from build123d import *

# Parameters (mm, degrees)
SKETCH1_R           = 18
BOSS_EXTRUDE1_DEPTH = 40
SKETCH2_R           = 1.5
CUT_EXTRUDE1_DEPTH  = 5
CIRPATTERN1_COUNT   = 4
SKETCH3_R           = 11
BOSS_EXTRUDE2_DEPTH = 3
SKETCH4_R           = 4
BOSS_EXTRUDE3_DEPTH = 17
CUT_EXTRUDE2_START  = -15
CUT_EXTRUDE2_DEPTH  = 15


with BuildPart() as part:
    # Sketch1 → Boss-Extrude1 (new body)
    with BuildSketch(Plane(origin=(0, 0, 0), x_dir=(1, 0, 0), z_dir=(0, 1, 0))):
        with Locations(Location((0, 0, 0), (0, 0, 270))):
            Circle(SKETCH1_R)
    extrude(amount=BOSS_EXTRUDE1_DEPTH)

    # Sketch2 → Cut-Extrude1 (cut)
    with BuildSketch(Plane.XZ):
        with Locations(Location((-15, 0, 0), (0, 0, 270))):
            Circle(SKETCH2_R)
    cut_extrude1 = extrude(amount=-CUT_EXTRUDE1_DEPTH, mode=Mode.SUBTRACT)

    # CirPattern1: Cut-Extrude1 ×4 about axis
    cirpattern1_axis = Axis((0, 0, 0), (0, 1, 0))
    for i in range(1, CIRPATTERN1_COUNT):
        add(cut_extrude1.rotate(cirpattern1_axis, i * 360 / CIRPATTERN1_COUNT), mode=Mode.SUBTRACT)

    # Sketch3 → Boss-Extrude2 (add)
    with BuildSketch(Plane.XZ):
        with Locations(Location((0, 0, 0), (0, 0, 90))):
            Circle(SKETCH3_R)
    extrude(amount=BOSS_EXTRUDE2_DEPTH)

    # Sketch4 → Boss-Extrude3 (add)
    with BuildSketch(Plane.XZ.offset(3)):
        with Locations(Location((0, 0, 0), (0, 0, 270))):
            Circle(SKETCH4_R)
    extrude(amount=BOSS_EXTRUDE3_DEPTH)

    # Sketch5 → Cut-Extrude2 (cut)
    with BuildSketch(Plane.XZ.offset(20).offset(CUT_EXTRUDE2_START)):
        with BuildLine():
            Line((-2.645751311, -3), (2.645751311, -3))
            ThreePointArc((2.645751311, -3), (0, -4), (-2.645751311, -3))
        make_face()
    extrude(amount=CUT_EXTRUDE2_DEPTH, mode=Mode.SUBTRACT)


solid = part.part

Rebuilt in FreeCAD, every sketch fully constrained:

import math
import FreeCAD as App
import Part
import Sketcher

V = App.Vector

doc = App.newDocument("Part")
body = doc.addObject("PartDesign::Body", "Body")

# Sketch on XZ plane
sketch1 = body.newObject("Sketcher::SketchObject", "Sketch")
sketch1.AttachmentSupport = (doc.getObject("XZ_Plane"), [""])
sketch1.MapMode = "FlatFace"
sketch1.addGeometry(Part.Circle(V(0, 0, 0), V(0, 0, 1), 18), False)
sketch1.addConstraint(Sketcher.Constraint("Coincident", 0, 3, -1, 1))
sketch1.addConstraint(Sketcher.Constraint("Diameter", 0, 36.0))
pad1 = body.newObject("PartDesign::Pad", "Pad")
pad1.Profile = sketch1
pad1.Length = 40
pad1.Reversed = True

# Sketch on XZ plane
sketch2 = body.newObject("Sketcher::SketchObject", "Sketch001")
sketch2.AttachmentSupport = (doc.getObject("XZ_Plane"), [""])
sketch2.MapMode = "FlatFace"
sketch2.addGeometry(Part.Circle(V(-15, 0, 0), V(0, 0, 1), 1.5), False)
sketch2.addConstraint(Sketcher.Constraint("PointOnObject", 0, 3, -1))
sketch2.addConstraint(Sketcher.Constraint("Diameter", 0, 3.0))
sketch2.addConstraint(Sketcher.Constraint("DistanceX", 0, 3, -1, 1, 15.0))
pocket1 = body.newObject("PartDesign::Pocket", "Pocket")
pocket1.Profile = sketch2
pocket1.Length = 5
doc.recompute()

polarpattern = body.newObject("PartDesign::PolarPattern", "PolarPattern")
polarpattern.Originals = [pocket1]
polarpattern.Axis = (doc.getObject("Y_Axis"), [""])
polarpattern.Angle = 360
polarpattern.Occurrences = 4
body.Tip = polarpattern

# Sketch on XZ plane
sketch3 = body.newObject("Sketcher::SketchObject", "Sketch002")
sketch3.AttachmentSupport = (doc.getObject("XZ_Plane"), [""])
sketch3.MapMode = "FlatFace"
sketch3.addGeometry(Part.Circle(V(0, 0, 0), V(0, 0, 1), 11), False)
sketch3.addConstraint(Sketcher.Constraint("Coincident", 0, 3, -1, 1))
sketch3.addConstraint(Sketcher.Constraint("Diameter", 0, 22.0))
pad2 = body.newObject("PartDesign::Pad", "Pad001")
pad2.Profile = sketch3
pad2.Length = 3

# Sketch on XZ plane
sketch4 = body.newObject("Sketcher::SketchObject", "Sketch003")
sketch4.AttachmentSupport = (doc.getObject("XZ_Plane"), [""])
sketch4.MapMode = "FlatFace"
sketch4.AttachmentOffset = App.Placement(V(0, 0, 3), App.Rotation())
sketch4.addGeometry(Part.Circle(V(0, 0, 0), V(0, 0, 1), 4), False)
sketch4.addConstraint(Sketcher.Constraint("Coincident", 0, 3, -1, 1))
sketch4.addConstraint(Sketcher.Constraint("Diameter", 0, 8.0))
pad3 = body.newObject("PartDesign::Pad", "Pad002")
pad3.Profile = sketch4
pad3.Length = 17

# Sketch on XZ plane
sketch5 = body.newObject("Sketcher::SketchObject", "Sketch004")
sketch5.AttachmentSupport = (doc.getObject("XZ_Plane"), [""])
sketch5.MapMode = "FlatFace"
sketch5.AttachmentOffset = App.Placement(V(0, 0, 5), App.Rotation())
sketch5.addGeometry(Part.LineSegment(V(2.6, -3, 0), V(-2.6, -3, 0)), False)
sketch5.addGeometry(Part.ArcOfCircle(Part.Circle(V(0, 0, 0), V(0, 0, 1), 4), math.radians(-131), math.radians(-49)), False)
sketch5.addConstraint(Sketcher.Constraint("Coincident", 0, 1, 1, 2))
sketch5.addConstraint(Sketcher.Constraint("Coincident", 1, 1, 0, 2))
sketch5.addConstraint(Sketcher.Constraint("Horizontal", 0))
sketch5.addConstraint(Sketcher.Constraint("Coincident", 1, 3, -1, 1))
sketch5.addConstraint(Sketcher.Constraint("Radius", 1, 4.0))
sketch5.addConstraint(Sketcher.Constraint("DistanceY", 0, 1, -1, 1, 3.0))
pocket2 = body.newObject("PartDesign::Pocket", "Pocket001")
pocket2.Profile = sketch5
pocket2.Length = 15
pocket2.Reversed = True

doc.recompute()
